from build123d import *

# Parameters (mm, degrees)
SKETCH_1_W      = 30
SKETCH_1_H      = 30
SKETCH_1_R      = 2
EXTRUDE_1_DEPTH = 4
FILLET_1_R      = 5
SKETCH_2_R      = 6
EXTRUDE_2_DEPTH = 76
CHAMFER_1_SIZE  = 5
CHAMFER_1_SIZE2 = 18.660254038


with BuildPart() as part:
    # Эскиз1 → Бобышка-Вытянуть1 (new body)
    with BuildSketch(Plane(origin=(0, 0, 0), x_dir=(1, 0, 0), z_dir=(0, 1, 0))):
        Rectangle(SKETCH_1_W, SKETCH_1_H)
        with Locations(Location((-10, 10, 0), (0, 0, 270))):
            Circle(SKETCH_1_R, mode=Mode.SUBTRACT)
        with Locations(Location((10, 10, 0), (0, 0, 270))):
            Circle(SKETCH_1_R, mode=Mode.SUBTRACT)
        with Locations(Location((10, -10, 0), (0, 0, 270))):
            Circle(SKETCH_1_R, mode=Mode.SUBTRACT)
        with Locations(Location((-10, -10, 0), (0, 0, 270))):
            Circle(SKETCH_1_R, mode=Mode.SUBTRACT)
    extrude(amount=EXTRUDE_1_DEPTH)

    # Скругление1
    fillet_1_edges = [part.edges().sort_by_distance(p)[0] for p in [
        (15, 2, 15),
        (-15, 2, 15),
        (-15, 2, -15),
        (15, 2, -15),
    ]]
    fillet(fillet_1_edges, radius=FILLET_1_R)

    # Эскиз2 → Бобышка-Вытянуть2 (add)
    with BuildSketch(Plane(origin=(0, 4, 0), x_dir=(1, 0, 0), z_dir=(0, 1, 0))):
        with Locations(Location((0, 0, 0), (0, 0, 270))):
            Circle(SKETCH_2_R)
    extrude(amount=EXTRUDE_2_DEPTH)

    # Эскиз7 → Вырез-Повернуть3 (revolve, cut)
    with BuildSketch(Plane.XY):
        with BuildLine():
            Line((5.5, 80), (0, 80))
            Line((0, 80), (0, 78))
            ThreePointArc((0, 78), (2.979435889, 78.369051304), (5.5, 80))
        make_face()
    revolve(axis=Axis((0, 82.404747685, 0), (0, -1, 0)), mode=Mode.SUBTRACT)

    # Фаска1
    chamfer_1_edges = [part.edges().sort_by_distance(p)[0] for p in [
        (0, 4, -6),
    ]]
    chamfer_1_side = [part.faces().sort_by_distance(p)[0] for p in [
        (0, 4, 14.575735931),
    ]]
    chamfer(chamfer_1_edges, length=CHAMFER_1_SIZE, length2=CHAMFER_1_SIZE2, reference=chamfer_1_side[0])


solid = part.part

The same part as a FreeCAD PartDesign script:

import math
import FreeCAD as App
import Part
import Sketcher

V = App.Vector


def edges_at(feature, points):
    """Names of the edges that pass closest to the given points."""
    edges = feature.Shape.Edges
    near = lambda p: min(range(len(edges)), key=lambda i: edges[i].distToShape(Part.Vertex(*p))[0])
    return sorted({f"Edge{near(p) + 1}" for p in points})

doc = App.newDocument("Part")
body = doc.addObject("PartDesign::Body", "Body")

# Sketch on XZ plane
sketch1 = body.newObject("Sketcher::SketchObject", "Sketch")
sketch1.AttachmentSupport = (doc.getObject("XZ_Plane"), [""])
sketch1.MapMode = "FlatFace"
sketch1.addGeometry(Part.LineSegment(V(-15, -15, 0), V(-15, 15, 0)), False)
sketch1.addGeometry(Part.LineSegment(V(-15, 15, 0), V(15, 15, 0)), False)
sketch1.addGeometry(Part.LineSegment(V(15, 15, 0), V(15, -15, 0)), False)
sketch1.addGeometry(Part.LineSegment(V(15, -15, 0), V(-15, -15, 0)), False)
sketch1.addGeometry(Part.Circle(V(-10, 10, 0), V(0, 0, 1), 2), False)
sketch1.addGeometry(Part.Circle(V(10, 10, 0), V(0, 0, 1), 2), False)
sketch1.addGeometry(Part.Circle(V(-10, -10, 0), V(0, 0, 1), 2), False)
sketch1.addGeometry(Part.Circle(V(10, -10, 0), V(0, 0, 1), 2), False)
sketch1.addConstraint(Sketcher.Constraint("Coincident", 0, 2, 1, 1))
sketch1.addConstraint(Sketcher.Constraint("Coincident", 1, 2, 2, 1))
sketch1.addConstraint(Sketcher.Constraint("Coincident", 2, 2, 3, 1))
sketch1.addConstraint(Sketcher.Constraint("Coincident", 3, 2, 0, 1))
sketch1.addConstraint(Sketcher.Constraint("Vertical", 0))
sketch1.addConstraint(Sketcher.Constraint("Horizontal", 1))
sketch1.addConstraint(Sketcher.Constraint("Vertical", 2))
sketch1.addConstraint(Sketcher.Constraint("Horizontal", 3))
sketch1.addConstraint(Sketcher.Constraint("Equal", 4, 5))
sketch1.addConstraint(Sketcher.Constraint("Equal", 5, 6))
sketch1.addConstraint(Sketcher.Constraint("Equal", 6, 7))
sketch1.addConstraint(Sketcher.Constraint("Symmetric", 5, 3, 6, 3, -1, 1))
sketch1.addConstraint(Sketcher.Constraint("Symmetric", 4, 3, 7, 3, -1, 1))
sketch1.addConstraint(Sketcher.Constraint("Symmetric", 0, 2, 2, 2, -1, 1))
sketch1.addConstraint(Sketcher.Constraint("Symmetric", 4, 3, 5, 3, -2))
sketch1.addConstraint(Sketcher.Constraint("Equal", 3, 0))
sketch1.addConstraint(Sketcher.Constraint("Diameter", 4, 4.0))
sketch1.addConstraint(Sketcher.Constraint("DistanceX", 1, 1, 1, 2, 30.0))
sketch1.addConstraint(Sketcher.Constraint("DistanceX", 4, 3, -1, 1, 10.0))
sketch1.addConstraint(Sketcher.Constraint("DistanceY", -1, 1, 4, 3, 10.0))
pad1 = body.newObject("PartDesign::Pad", "Pad")
pad1.Profile = sketch1
pad1.Length = 4
pad1.Reversed = True
doc.recompute()

fillet = body.newObject("PartDesign::Fillet", "Fillet")
fillet.Base = (pad1, edges_at(pad1, [
    (15, 2, 15),
    (-15, 2, 15),
    (-15, 2, -15),
    (15, 2, -15),
]))
fillet.Radius = 5

# Sketch on XZ plane
sketch2 = body.newObject("Sketcher::SketchObject", "Sketch001")
sketch2.AttachmentSupport = (doc.getObject("XZ_Plane"), [""])
sketch2.MapMode = "FlatFace"
sketch2.AttachmentOffset = App.Placement(V(0, 0, -4), App.Rotation())
sketch2.addGeometry(Part.Circle(V(0, 0, 0), V(0, 0, 1), 6), False)
sketch2.addConstraint(Sketcher.Constraint("Coincident", 0, 3, -1, 1))
sketch2.addConstraint(Sketcher.Constraint("Diameter", 0, 12.0))
pad2 = body.newObject("PartDesign::Pad", "Pad001")
pad2.Profile = sketch2
pad2.Length = 76
pad2.Reversed = True

# Sketch on XY plane
sketch3 = body.newObject("Sketcher::SketchObject", "Sketch002")
sketch3.AttachmentSupport = (doc.getObject("XY_Plane"), [""])
sketch3.MapMode = "FlatFace"
sketch3.addGeometry(Part.LineSegment(V(5.5, 80, 0), V(0, 80, 0)), False)
sketch3.addGeometry(Part.LineSegment(V(0, 80, 0), V(0, 78, 0)), False)
sketch3.addGeometry(Part.ArcOfCircle(Part.Circle(V(0.7, 84.7, 0), V(0, 0, 1), 6.7), math.radians(-96), math.radians(-44)), False)
sketch3.addConstraint(Sketcher.Constraint("Coincident", 0, 2, 1, 1))
sketch3.addConstraint(Sketcher.Constraint("Coincident", 1, 2, 2, 1))
sketch3.addConstraint(Sketcher.Constraint("Coincident", 2, 2, 0, 1))
sketch3.addConstraint(Sketcher.Constraint("Horizontal", 0))
sketch3.addConstraint(Sketcher.Constraint("Vertical", 1))
sketch3.addConstraint(Sketcher.Constraint("PointOnObject", 0, 2, -2))
sketch3.addConstraint(Sketcher.Constraint("DistanceY", 1, 2, 1, 1, 2.0))
sketch3.addConstraint(Sketcher.Constraint("DistanceX", 0, 2, 0, 1, 5.5))
sketch3.addConstraint(Sketcher.Constraint("DistanceY", -1, 1, 0, 2, 80.0))
sketch3.addConstraint(Sketcher.Constraint("Radius", 2, 6.712575))
groove = body.newObject("PartDesign::Groove", "Groove")
groove.Profile = sketch3
groove.ReferenceAxis = (sketch3, ["V_Axis"])
groove.Angle = 360
doc.recompute()

chamfer = body.newObject("PartDesign::Chamfer", "Chamfer")
chamfer.Base = (groove, edges_at(groove, [(0, 4, -6)]))
chamfer.ChamferType = "Two distances"
chamfer.Size = 5
chamfer.Size2 = 18.660254

doc.recompute()
